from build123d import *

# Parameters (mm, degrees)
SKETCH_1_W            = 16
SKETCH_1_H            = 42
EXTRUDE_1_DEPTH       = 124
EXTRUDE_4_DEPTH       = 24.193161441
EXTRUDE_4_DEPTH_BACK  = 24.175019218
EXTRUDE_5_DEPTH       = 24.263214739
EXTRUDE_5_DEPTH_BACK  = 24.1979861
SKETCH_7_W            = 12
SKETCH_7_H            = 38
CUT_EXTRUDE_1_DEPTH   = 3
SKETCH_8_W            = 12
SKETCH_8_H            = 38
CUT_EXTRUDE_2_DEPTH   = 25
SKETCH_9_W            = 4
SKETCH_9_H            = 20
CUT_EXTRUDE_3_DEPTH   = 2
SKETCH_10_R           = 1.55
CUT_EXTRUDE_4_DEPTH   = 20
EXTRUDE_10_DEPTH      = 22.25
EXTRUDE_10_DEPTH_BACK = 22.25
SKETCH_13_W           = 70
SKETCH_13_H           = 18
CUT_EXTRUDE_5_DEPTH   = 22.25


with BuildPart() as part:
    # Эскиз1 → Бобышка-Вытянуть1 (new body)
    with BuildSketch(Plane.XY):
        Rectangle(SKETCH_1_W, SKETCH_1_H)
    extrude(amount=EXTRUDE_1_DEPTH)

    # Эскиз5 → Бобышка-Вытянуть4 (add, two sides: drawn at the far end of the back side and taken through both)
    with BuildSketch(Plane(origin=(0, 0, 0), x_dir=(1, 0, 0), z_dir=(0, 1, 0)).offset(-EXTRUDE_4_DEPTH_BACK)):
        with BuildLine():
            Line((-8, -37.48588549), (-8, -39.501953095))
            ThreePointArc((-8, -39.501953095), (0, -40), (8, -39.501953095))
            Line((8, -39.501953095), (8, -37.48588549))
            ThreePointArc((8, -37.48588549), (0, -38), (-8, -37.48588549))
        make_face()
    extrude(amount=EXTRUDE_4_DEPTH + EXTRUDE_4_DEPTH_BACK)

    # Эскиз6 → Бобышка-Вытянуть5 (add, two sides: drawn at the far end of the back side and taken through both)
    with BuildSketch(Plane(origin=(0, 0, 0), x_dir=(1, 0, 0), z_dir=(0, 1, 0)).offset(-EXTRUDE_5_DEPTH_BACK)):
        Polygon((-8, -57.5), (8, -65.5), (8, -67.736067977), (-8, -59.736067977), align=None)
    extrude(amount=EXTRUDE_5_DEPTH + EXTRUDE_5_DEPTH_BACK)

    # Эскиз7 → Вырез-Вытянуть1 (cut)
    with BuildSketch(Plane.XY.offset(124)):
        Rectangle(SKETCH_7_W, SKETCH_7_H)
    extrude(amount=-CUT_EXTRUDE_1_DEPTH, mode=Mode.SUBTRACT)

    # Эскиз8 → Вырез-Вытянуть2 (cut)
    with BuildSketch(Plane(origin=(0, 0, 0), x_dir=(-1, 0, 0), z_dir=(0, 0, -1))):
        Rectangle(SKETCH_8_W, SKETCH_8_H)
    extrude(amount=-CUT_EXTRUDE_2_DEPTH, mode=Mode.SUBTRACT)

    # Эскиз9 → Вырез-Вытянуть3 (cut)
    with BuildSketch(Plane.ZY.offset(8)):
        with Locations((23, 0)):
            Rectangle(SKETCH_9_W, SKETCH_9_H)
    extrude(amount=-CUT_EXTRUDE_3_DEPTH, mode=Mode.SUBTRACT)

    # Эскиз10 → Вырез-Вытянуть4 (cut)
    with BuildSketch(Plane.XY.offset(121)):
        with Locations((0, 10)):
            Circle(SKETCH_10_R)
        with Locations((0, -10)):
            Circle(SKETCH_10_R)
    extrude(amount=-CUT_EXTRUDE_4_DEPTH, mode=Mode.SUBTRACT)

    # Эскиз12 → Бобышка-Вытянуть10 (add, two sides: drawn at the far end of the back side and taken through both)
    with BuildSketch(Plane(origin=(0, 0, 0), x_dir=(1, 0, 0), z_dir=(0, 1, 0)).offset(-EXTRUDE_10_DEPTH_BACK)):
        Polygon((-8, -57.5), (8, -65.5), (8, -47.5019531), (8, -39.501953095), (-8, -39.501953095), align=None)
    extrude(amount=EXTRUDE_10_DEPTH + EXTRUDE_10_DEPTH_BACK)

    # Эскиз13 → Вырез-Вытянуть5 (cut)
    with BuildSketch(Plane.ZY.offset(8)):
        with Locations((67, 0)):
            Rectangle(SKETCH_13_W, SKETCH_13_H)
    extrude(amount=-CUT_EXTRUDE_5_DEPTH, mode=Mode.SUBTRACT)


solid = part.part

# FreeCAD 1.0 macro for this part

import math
import FreeCAD as App
import Part
import Sketcher

V = App.Vector
Q = App.Units.Quantity

doc = App.newDocument("Part")
body = doc.addObject("PartDesign::Body", "Body")

# Sketch on XY plane
sketch1 = body.newObject("Sketcher::SketchObject", "Sketch")
sketch1.AttachmentSupport = (doc.getObject("XY_Plane"), [""])
sketch1.MapMode = "FlatFace"
sketch1.addGeometry([
    Part.LineSegment(V(-8, 21, 0), V(-8, -21, 0)),
    Part.LineSegment(V(-8, -21, 0), V(8, -21, 0)),
    Part.LineSegment(V(8, -21, 0), V(8, 21, 0)),
    Part.LineSegment(V(8, 21, 0), V(-8, 21, 0)),
], False)
sketch1.addConstraint([
    Sketcher.Constraint("Coincident", 0, 2, 1, 1),
    Sketcher.Constraint("Coincident", 1, 2, 2, 1),
    Sketcher.Constraint("Coincident", 2, 2, 3, 1),
    Sketcher.Constraint("Coincident", 3, 2, 0, 1),
    Sketcher.Constraint("Vertical", 0),
    Sketcher.Constraint("Horizontal", 1),
    Sketcher.Constraint("Vertical", 2),
    Sketcher.Constraint("Horizontal", 3),
    Sketcher.Constraint("Symmetric", 0, 2, 2, 2, -1, 1),
    Sketcher.Constraint("DistanceX", 1, 1, 1, 2, Q("16 mm")),
    Sketcher.Constraint("DistanceY", 0, 2, 0, 1, Q("42 mm")),
])
pad1 = body.newObject("PartDesign::Pad", "Pad")
pad1.Profile = sketch1
pad1.Length = 124

# Sketch on XZ plane
sketch2 = body.newObject("Sketcher::SketchObject", "Sketch001")
sketch2.AttachmentSupport = (doc.getObject("XZ_Plane"), [""])
sketch2.MapMode = "FlatFace"
sketch2.addGeometry([
    Part.LineSegment(V(-8, 37.5, 0), V(-8, 39.5, 0)),
    Part.ArcOfCircle(Part.Circle(V(0, -24.5, 0), V(0, 0, 1), 64.5), math.radians(82.88), math.radians(97.12)),
    Part.LineSegment(V(8, 39.5, 0), V(8, 37.5, 0)),
    Part.ArcOfCircle(Part.Circle(V(0, -24.5, 0), V(0, 0, 1), 62.5), math.radians(82.65), math.radians(97.35)),
], False)
sketch2.addConstraint([
    Sketcher.Constraint("Coincident", 0, 2, 1, 2),
    Sketcher.Constraint("Coincident", 1, 1, 2, 1),
    Sketcher.Constraint("Coincident", 2, 2, 3, 1),
    Sketcher.Constraint("Coincident", 3, 2, 0, 1),
    Sketcher.Constraint("Vertical", 0),
    Sketcher.Constraint("Vertical", 2),
    Sketcher.Constraint("Coincident", 3, 3, 1, 3),
    Sketcher.Constraint("Symmetric", 0, 2, 1, 1, -2),
    Sketcher.Constraint("Radius", 1, Q("64.5 mm")),
    Sketcher.Constraint("Radius", 3, Q("62.5 mm")),
    Sketcher.Constraint("DistanceX", 0, 2, -1, 1, Q("8 mm")),
    Sketcher.Constraint("DistanceY", 1, 3, -1, 1, Q("24.5 mm")),
])
pad2 = body.newObject("PartDesign::Pad", "Pad001")
pad2.Profile = sketch2
pad2.Type = "TwoLengths"
pad2.Length = 24.193161
pad2.Length2 = 24.175019
pad2.Reversed = True

# Sketch on XZ plane
sketch3 = body.newObject("Sketcher::SketchObject", "Sketch002")
sketch3.AttachmentSupport = (doc.getObject("XZ_Plane"), [""])
sketch3.MapMode = "FlatFace"
sketch3.addGeometry([
    Part.LineSegment(V(8, 65.5, 0), V(-8, 57.5, 0)),
    Part.LineSegment(V(-8, 57.5, 0), V(-8, 59.7, 0)),
    Part.LineSegment(V(-8, 59.7, 0), V(8, 67.7, 0)),
    Part.LineSegment(V(8, 67.7, 0), V(8, 65.5, 0)),
], False)
sketch3.addConstraint([
    Sketcher.Constraint("Coincident", 0, 2, 1, 1),
    Sketcher.Constraint("Coincident", 1, 2, 2, 1),
    Sketcher.Constraint("Coincident", 2, 2, 3, 1),
    Sketcher.Constraint("Coincident", 3, 2, 0, 1),
    Sketcher.Constraint("Vertical", 1),
    Sketcher.Constraint("Vertical", 3),
    Sketcher.Constraint("Parallel", 0, 2),
    Sketcher.Constraint("DistanceX", 0, 2, -1, 1, Q("8 mm")),
    Sketcher.Constraint("DistanceX", -1, 1, 2, 2, Q("8 mm")),
    Sketcher.Constraint("DistanceY", 1, 2, 2, 2, Q("8 mm")),
    Sketcher.Constraint("DistanceY", -1, 1, 0, 2, Q("57.5 mm")),
    Sketcher.Constraint("DistanceY", 1, 1, 1, 2, Q("2.236068 mm")),
])
pad3 = body.newObject("PartDesign::Pad", "Pad002")
pad3.Profile = sketch3
pad3.Type = "TwoLengths"
pad3.Length = 24.263215
pad3.Length2 = 24.197986
pad3.Reversed = True

# Sketch on XY plane
sketch4 = body.newObject("Sketcher::SketchObject", "Sketch003")
sketch4.AttachmentSupport = (doc.getObject("XY_Plane"), [""])
sketch4.MapMode = "FlatFace"
sketch4.AttachmentOffset = App.Placement(V(0, 0, 124), App.Rotation())
sketch4.addGeometry([
    Part.LineSegment(V(-6, 19, 0), V(-6, -19, 0)),
    Part.LineSegment(V(-6, -19, 0), V(6, -19, 0)),
    Part.LineSegment(V(6, -19, 0), V(6, 19, 0)),
    Part.LineSegment(V(6, 19, 0), V(-6, 19, 0)),
], False)
sketch4.addConstraint([
    Sketcher.Constraint("Coincident", 0, 2, 1, 1),
    Sketcher.Constraint("Coincident", 1, 2, 2, 1),
    Sketcher.Constraint("Coincident", 2, 2, 3, 1),
    Sketcher.Constraint("Coincident", 3, 2, 0, 1),
    Sketcher.Constraint("Vertical", 0),
    Sketcher.Constraint("Horizontal", 1),
    Sketcher.Constraint("Vertical", 2),
    Sketcher.Constraint("Horizontal", 3),
    Sketcher.Constraint("Symmetric", 0, 2, 2, 2, -1, 1),
    Sketcher.Constraint("DistanceX", 1, 1, 1, 2, Q("12 mm")),
    Sketcher.Constraint("DistanceY", 0, 2, 0, 1, Q("38 mm")),
])
pocket1 = body.newObject("PartDesign::Pocket", "Pocket")
pocket1.Profile = sketch4
pocket1.Length = 3

# Sketch on XY plane
sketch5 = body.newObject("Sketcher::SketchObject", "Sketch004")
sketch5.AttachmentSupport = (doc.getObject("XY_Plane"), [""])
sketch5.MapMode = "FlatFace"
sketch5.addGeometry([
    Part.LineSegment(V(6, 19, 0), V(6, -19, 0)),
    Part.LineSegment(V(6, -19, 0), V(-6, -19, 0)),
    Part.LineSegment(V(-6, -19, 0), V(-6, 19, 0)),
    Part.LineSegment(V(-6, 19, 0), V(6, 19, 0)),
], False)
sketch5.addConstraint([
    Sketcher.Constraint("Coincident", 0, 2, 1, 1),
    Sketcher.Constraint("Coincident", 1, 2, 2, 1),
    Sketcher.Constraint("Coincident", 2, 2, 3, 1),
    Sketcher.Constraint("Coincident", 3, 2, 0, 1),
    Sketcher.Constraint("Vertical", 0),
    Sketcher.Constraint("Horizontal", 1),
    Sketcher.Constraint("Vertical", 2),
    Sketcher.Constraint("Horizontal", 3),
    Sketcher.Constraint("Symmetric", 0, 2, 2, 2, -1, 1),
    Sketcher.Constraint("DistanceX", 1, 2, 1, 1, Q("12 mm")),
    Sketcher.Constraint("DistanceY", 0, 2, 0, 1, Q("38 mm")),
])
pocket2 = body.newObject("PartDesign::Pocket", "Pocket001")
pocket2.Profile = sketch5
pocket2.Length = 25
pocket2.Reversed = True

# Sketch on YZ plane
sketch6 = body.newObject("Sketcher::SketchObject", "Sketch005")
sketch6.AttachmentSupport = (doc.getObject("YZ_Plane"), [""])
sketch6.MapMode = "FlatFace"
sketch6.AttachmentOffset = App.Placement(V(0, 0, -8), App.Rotation())
sketch6.addGeometry([
    Part.LineSegment(V(10, 21, 0), V(-10, 21, 0)),
    Part.LineSegment(V(-10, 21, 0), V(-10, 25, 0)),
    Part.LineSegment(V(-10, 25, 0), V(10, 25, 0)),
    Part.LineSegment(V(10, 25, 0), V(10, 21, 0)),
], False)
sketch6.addConstraint([
    Sketcher.Constraint("Coincident", 0, 2, 1, 1),
    Sketcher.Constraint("Coincident", 1, 2, 2, 1),
    Sketcher.Constraint("Coincident", 2, 2, 3, 1),
    Sketcher.Constraint("Coincident", 3, 2, 0, 1),
    Sketcher.Constraint("Horizontal", 0),
    Sketcher.Constraint("Vertical", 1),
    Sketcher.Constraint("Horizontal", 2),
    Sketcher.Constraint("Vertical", 3),
    Sketcher.Constraint("DistanceX", 0, 2, 0, 1, Q("20 mm")),
    Sketcher.Constraint("DistanceY", 1, 1, 1, 2, Q("4 mm")),
    Sketcher.Constraint("DistanceX", 0, 2, -1, 1, Q("10 mm")),
    Sketcher.Constraint("DistanceY", -1, 1, 0, 2, Q("21 mm")),
])
pocket3 = body.newObject("PartDesign::Pocket", "Pocket002")
pocket3.Profile = sketch6
pocket3.Length = 2
pocket3.Reversed = True

# Sketch on XY plane
sketch7 = body.newObject("Sketcher::SketchObject", "Sketch006")
sketch7.AttachmentSupport = (doc.getObject("XY_Plane"), [""])
sketch7.MapMode = "FlatFace"
sketch7.AttachmentOffset = App.Placement(V(0, 0, 121), App.Rotation())
sketch7.addGeometry([
    Part.Circle(V(0, 10, 0), V(0, 0, 1), 1.6),
    Part.Circle(V(0, -10, 0), V(0, 0, 1), 1.6),
], False)
sketch7.addConstraint([
    Sketcher.Constraint("Equal", 0, 1),
    Sketcher.Constraint("Symmetric", 0, 3, 1, 3, -1, 1),
    Sketcher.Constraint("PointOnObject", 0, 3, -2),
    Sketcher.Constraint("Diameter", 0, Q("3.1 mm")),
    Sketcher.Constraint("DistanceY", -1, 1, 0, 3, Q("10 mm")),
])
pocket4 = body.newObject("PartDesign::Pocket", "Pocket003")
pocket4.Profile = sketch7
pocket4.Length = 20

# Sketch on XZ plane
sketch8 = body.newObject("Sketcher::SketchObject", "Sketch007")
sketch8.AttachmentSupport = (doc.getObject("XZ_Plane"), [""])
sketch8.MapMode = "FlatFace"
sketch8.addGeometry([
    Part.LineSegment(V(-8, 58, 0), V(8, 66, 0)),
    Part.LineSegment(V(8, 66, 0), V(8, 40, 0)),
    Part.LineSegment(V(8, 40, 0), V(-8, 40, 0)),
    Part.LineSegment(V(-8, 40, 0), V(-8, 58, 0)),
], False)
sketch8.addConstraint([
    Sketcher.Constraint("Coincident", 0, 2, 1, 1),
    Sketcher.Constraint("Coincident", 1, 2, 2, 1),
    Sketcher.Constraint("Coincident", 2, 2, 3, 1),
    Sketcher.Constraint("Coincident", 3, 2, 0, 1),
    Sketcher.Constraint("Vertical", 1),
    Sketcher.Constraint("Horizontal", 2),
    Sketcher.Constraint("Vertical", 3),
    Sketcher.Constraint("DistanceX", 2, 2, 2, 1, Q("16 mm")),
    Sketcher.Constraint("DistanceX", -1, 1, 0, 2, Q("8 mm")),
    Sketcher.Constraint("DistanceY", 3, 2, 0, 2, Q("8 mm")),
    Sketcher.Constraint("DistanceY", -1, 1, 0, 2, Q("65.5 mm")),
    Sketcher.Constraint("DistanceY", 1, 2, 1, 1, Q("25.998047 mm")),
])
pad4 = body.newObject("PartDesign::Pad", "Pad003")
pad4.Profile = sketch8
pad4.Type = "TwoLengths"
pad4.Length = 22.25
pad4.Length2 = 22.25
pad4.Reversed = True

# Sketch on YZ plane
sketch9 = body.newObject("Sketcher::SketchObject", "Sketch008")
sketch9.AttachmentSupport = (doc.getObject("YZ_Plane"), [""])
sketch9.MapMode = "FlatFace"
sketch9.AttachmentOffset = App.Placement(V(0, 0, -8), App.Rotation())
sketch9.addGeometry([
    Part.LineSegment(V(9, 32, 0), V(-9, 32, 0)),
    Part.LineSegment(V(-9, 32, 0), V(-9, 102, 0)),
    Part.LineSegment(V(-9, 102, 0), V(9, 102, 0)),
    Part.LineSegment(V(9, 102, 0), V(9, 32, 0)),
], False)
sketch9.addConstraint([
    Sketcher.Constraint("Coincident", 0, 2, 1, 1),
    Sketcher.Constraint("Coincident", 1, 2, 2, 1),
    Sketcher.Constraint("Coincident", 2, 2, 3, 1),
    Sketcher.Constraint("Coincident", 3, 2, 0, 1),
    Sketcher.Constraint("Horizontal", 0),
    Sketcher.Constraint("Vertical", 1),
    Sketcher.Constraint("Horizontal", 2),
    Sketcher.Constraint("Vertical", 3),
    Sketcher.Constraint("DistanceX", 0, 2, 0, 1, Q("18 mm")),
    Sketcher.Constraint("DistanceY", 1, 1, 1, 2, Q("70 mm")),
    Sketcher.Constraint("DistanceX", 0, 2, -1, 1, Q("9 mm")),
    Sketcher.Constraint("DistanceY", -1, 1, 0, 2, Q("32 mm")),
])
pocket5 = body.newObject("PartDesign::Pocket", "Pocket004")
pocket5.Profile = sketch9
pocket5.Length = 22.25
pocket5.Reversed = True

doc.recompute()
